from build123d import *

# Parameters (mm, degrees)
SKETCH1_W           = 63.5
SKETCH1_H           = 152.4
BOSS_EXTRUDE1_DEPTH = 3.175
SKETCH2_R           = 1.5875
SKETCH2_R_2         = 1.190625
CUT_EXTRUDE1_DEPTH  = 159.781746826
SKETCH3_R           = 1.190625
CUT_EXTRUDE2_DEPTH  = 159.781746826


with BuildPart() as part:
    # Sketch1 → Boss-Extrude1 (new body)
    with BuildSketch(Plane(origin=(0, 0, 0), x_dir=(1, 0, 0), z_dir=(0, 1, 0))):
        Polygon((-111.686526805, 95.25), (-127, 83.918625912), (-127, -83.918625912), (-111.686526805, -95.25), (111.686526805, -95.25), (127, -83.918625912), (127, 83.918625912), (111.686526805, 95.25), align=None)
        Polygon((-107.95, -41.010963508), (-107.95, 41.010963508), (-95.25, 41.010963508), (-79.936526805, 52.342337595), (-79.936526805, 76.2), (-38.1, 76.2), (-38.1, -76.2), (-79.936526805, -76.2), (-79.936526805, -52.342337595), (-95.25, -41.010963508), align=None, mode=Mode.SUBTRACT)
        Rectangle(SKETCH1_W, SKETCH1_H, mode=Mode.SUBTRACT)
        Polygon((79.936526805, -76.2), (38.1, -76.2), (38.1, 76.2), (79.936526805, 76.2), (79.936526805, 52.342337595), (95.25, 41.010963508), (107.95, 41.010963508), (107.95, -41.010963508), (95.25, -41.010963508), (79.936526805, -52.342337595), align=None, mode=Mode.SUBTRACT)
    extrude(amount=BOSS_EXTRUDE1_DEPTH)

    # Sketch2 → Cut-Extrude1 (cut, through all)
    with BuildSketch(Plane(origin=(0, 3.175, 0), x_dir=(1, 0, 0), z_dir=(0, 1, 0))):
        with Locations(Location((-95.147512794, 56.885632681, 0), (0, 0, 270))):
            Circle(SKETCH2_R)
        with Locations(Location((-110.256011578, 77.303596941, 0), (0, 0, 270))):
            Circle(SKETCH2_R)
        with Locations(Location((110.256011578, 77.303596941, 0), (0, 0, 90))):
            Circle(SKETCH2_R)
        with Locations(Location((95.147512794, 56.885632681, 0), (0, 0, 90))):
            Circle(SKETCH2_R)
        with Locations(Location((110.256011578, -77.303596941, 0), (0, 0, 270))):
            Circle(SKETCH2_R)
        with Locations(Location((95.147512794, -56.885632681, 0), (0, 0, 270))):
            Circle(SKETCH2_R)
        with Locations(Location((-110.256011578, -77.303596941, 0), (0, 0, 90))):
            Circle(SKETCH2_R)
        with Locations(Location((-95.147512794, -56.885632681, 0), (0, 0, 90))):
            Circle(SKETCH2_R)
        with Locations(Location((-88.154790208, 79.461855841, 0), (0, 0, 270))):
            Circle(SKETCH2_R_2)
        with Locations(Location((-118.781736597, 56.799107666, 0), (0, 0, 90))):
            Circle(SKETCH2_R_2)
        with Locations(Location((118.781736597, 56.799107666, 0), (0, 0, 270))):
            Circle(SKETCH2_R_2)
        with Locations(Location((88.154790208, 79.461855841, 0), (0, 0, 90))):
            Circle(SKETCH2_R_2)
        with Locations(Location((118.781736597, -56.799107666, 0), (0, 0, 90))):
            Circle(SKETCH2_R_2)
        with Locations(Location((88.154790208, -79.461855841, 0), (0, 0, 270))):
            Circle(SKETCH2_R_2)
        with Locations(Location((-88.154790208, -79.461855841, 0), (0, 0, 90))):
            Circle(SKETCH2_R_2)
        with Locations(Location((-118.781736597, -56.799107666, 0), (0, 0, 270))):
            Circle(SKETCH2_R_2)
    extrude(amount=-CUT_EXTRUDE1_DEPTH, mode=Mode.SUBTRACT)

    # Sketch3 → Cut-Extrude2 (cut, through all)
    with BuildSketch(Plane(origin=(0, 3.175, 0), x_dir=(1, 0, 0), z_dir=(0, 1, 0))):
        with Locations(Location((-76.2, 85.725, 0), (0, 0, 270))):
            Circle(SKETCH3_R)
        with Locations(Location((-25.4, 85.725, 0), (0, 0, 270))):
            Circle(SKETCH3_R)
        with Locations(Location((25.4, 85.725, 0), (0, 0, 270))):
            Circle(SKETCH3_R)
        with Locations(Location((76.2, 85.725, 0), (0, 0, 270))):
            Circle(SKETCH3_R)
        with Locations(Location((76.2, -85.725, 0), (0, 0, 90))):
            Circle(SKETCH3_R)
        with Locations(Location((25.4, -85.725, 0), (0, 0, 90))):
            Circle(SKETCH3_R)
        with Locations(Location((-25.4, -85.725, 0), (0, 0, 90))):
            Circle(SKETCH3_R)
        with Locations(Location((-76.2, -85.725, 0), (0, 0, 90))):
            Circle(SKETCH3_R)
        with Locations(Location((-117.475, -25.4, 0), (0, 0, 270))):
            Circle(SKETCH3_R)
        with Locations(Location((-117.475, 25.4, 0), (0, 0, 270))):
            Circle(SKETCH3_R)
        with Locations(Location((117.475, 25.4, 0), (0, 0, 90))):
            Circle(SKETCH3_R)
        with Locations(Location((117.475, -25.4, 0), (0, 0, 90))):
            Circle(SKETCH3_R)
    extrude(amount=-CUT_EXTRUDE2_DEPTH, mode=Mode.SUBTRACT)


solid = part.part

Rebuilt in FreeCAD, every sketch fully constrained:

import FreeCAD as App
import Part
import Sketcher

V = App.Vector
Q = App.Units.Quantity

doc = App.newDocument("Part")
body = doc.addObject("PartDesign::Body", "Body")

# Sketch on XZ plane
sketch1 = body.newObject("Sketcher::SketchObject", "Sketch")
sketch1.AttachmentSupport = (doc.getObject("XZ_Plane"), [""])
sketch1.MapMode = "FlatFace"
sketch1.addGeometry([
    Part.LineSegment(V(-112, -95, 0), V(-127, -84, 0)),  # 0
    Part.LineSegment(V(-127, -84, 0), V(-127, 84, 0)),  # 1
    Part.LineSegment(V(-127, 84, 0), V(-112, 95, 0)),  # 2
    Part.LineSegment(V(-112, 95, 0), V(112, 95, 0)),  # 3
    Part.LineSegment(V(112, 95, 0), V(127, 84, 0)),  # 4
    Part.LineSegment(V(127, 84, 0), V(127, -84, 0)),  # 5
    Part.LineSegment(V(127, -84, 0), V(112, -95, 0)),  # 6
    Part.LineSegment(V(112, -95, 0), V(-112, -95, 0)),  # 7
    Part.LineSegment(V(-95, 41, 0), V(-108, 41, 0)),  # 8
    Part.LineSegment(V(-108, 41, 0), V(-108, -41, 0)),  # 9
    Part.LineSegment(V(-108, -41, 0), V(-95, -41, 0)),  # 10
    Part.LineSegment(V(-95, -41, 0), V(-80, -52, 0)),  # 11
    Part.LineSegment(V(-80, -52, 0), V(-80, -76, 0)),  # 12
    Part.LineSegment(V(-80, -76, 0), V(-38, -76, 0)),  # 13
    Part.LineSegment(V(-38, -76, 0), V(-38, 76, 0)),  # 14
    Part.LineSegment(V(-38, 76, 0), V(-80, 76, 0)),  # 15
    Part.LineSegment(V(-80, 76, 0), V(-80, 52, 0)),  # 16
    Part.LineSegment(V(-80, 52, 0), V(-95, 41, 0)),  # 17
    Part.LineSegment(V(32, 76, 0), V(-32, 76, 0)),  # 18
    Part.LineSegment(V(-32, 76, 0), V(-32, -76, 0)),  # 19
    Part.LineSegment(V(-32, -76, 0), V(32, -76, 0)),  # 20
    Part.LineSegment(V(32, -76, 0), V(32, 76, 0)),  # 21
    Part.LineSegment(V(80, 52, 0), V(80, 76, 0)),  # 22
    Part.LineSegment(V(80, 76, 0), V(38, 76, 0)),  # 23
    Part.LineSegment(V(38, 76, 0), V(38, -76, 0)),  # 24
    Part.LineSegment(V(38, -76, 0), V(80, -76, 0)),  # 25
    Part.LineSegment(V(80, -76, 0), V(80, -52, 0)),  # 26
    Part.LineSegment(V(80, -52, 0), V(95, -41, 0)),  # 27
    Part.LineSegment(V(95, -41, 0), V(108, -41, 0)),  # 28
    Part.LineSegment(V(108, -41, 0), V(108, 41, 0)),  # 29
    Part.LineSegment(V(108, 41, 0), V(95, 41, 0)),  # 30
    Part.LineSegment(V(95, 41, 0), V(80, 52, 0)),  # 31
], False)
sketch1.addConstraint([
    Sketcher.Constraint("Coincident", 0, 2, 1, 1),
    Sketcher.Constraint("Coincident", 1, 2, 2, 1),
    Sketcher.Constraint("Coincident", 2, 2, 3, 1),
    Sketcher.Constraint("Coincident", 3, 2, 4, 1),
    Sketcher.Constraint("Coincident", 4, 2, 5, 1),
    Sketcher.Constraint("Coincident", 5, 2, 6, 1),
    Sketcher.Constraint("Coincident", 6, 2, 7, 1),
    Sketcher.Constraint("Coincident", 7, 2, 0, 1),
    Sketcher.Constraint("Coincident", 8, 2, 9, 1),
    Sketcher.Constraint("Coincident", 9, 2, 10, 1),
    Sketcher.Constraint("Coincident", 10, 2, 11, 1),
    Sketcher.Constraint("Coincident", 11, 2, 12, 1),
    Sketcher.Constraint("Coincident", 12, 2, 13, 1),
    Sketcher.Constraint("Coincident", 13, 2, 14, 1),
    Sketcher.Constraint("Coincident", 14, 2, 15, 1),
    Sketcher.Constraint("Coincident", 15, 2, 16, 1),
    Sketcher.Constraint("Coincident", 16, 2, 17, 1),
    Sketcher.Constraint("Coincident", 17, 2, 8, 1),
    Sketcher.Constraint("Coincident", 18, 2, 19, 1),
    Sketcher.Constraint("Coincident", 19, 2, 20, 1),
    Sketcher.Constraint("Coincident", 20, 2, 21, 1),
    Sketcher.Constraint("Coincident", 21, 2, 18, 1),
    Sketcher.Constraint("Coincident", 22, 2, 23, 1),
    Sketcher.Constraint("Coincident", 23, 2, 24, 1),
    Sketcher.Constraint("Coincident", 24, 2, 25, 1),
    Sketcher.Constraint("Coincident", 25, 2, 26, 1),
    Sketcher.Constraint("Coincident", 26, 2, 27, 1),
    Sketcher.Constraint("Coincident", 27, 2, 28, 1),
    Sketcher.Constraint("Coincident", 28, 2, 29, 1),
    Sketcher.Constraint("Coincident", 29, 2, 30, 1),
    Sketcher.Constraint("Coincident", 30, 2, 31, 1),
    Sketcher.Constraint("Coincident", 31, 2, 22, 1),
    Sketcher.Constraint("Vertical", 1),
    Sketcher.Constraint("Horizontal", 3),
    Sketcher.Constraint("Vertical", 5),
    Sketcher.Constraint("Horizontal", 7),
    Sketcher.Constraint("Horizontal", 8),
    Sketcher.Constraint("Vertical", 9),
    Sketcher.Constraint("Horizontal", 10),
    Sketcher.Constraint("Vertical", 12),
    Sketcher.Constraint("Horizontal", 13),
    Sketcher.Constraint("Vertical", 14),
    Sketcher.Constraint("Horizontal", 15),
    Sketcher.Constraint("Vertical", 16),
    Sketcher.Constraint("Horizontal", 18),
    Sketcher.Constraint("Vertical", 19),
    Sketcher.Constraint("Horizontal", 20),
    Sketcher.Constraint("Vertical", 21),
    Sketcher.Constraint("Vertical", 22),
    Sketcher.Constraint("Horizontal", 23),
    Sketcher.Constraint("Vertical", 24),
    Sketcher.Constraint("Horizontal", 25),
    Sketcher.Constraint("Vertical", 26),
    Sketcher.Constraint("Horizontal", 28),
    Sketcher.Constraint("Vertical", 29),
    Sketcher.Constraint("Horizontal", 30),
    Sketcher.Constraint("Symmetric", 0, 2, 4, 2, -1, 1),
    Sketcher.Constraint("Symmetric", 2, 2, 6, 2, -1, 1),
    Sketcher.Constraint("Symmetric", 18, 2, 20, 2, -1, 1),
    Sketcher.Constraint("Symmetric", 12, 2, 22, 2, -1, 1),
    Sketcher.Constraint("Symmetric", 14, 2, 24, 2, -1, 1),
    Sketcher.Constraint("Symmetric", 16, 2, 26, 2, -1, 1),
    Sketcher.Constraint("Symmetric", 17, 2, 27, 2, -1, 1),
    Sketcher.Constraint("Symmetric", 9, 2, 29, 2, -1, 1),
    Sketcher.Constraint("Symmetric", 15, 2, 22, 2, -2),
    Sketcher.Constraint("Symmetric", 10, 2, 27, 2, -2),
    Sketcher.Constraint("Parallel", 0, 4),
    Sketcher.Constraint("Parallel", 2, 6),
    Sketcher.Constraint("Parallel", 4, 11),
    Sketcher.Constraint("Parallel", 6, 17),
    Sketcher.Constraint("Parallel", 11, 31),
    Sketcher.Constraint("Horizontal", 1, 2, 4, 2),
    Sketcher.Constraint("Horizontal", 15, 2, 18, 2),
    Sketcher.Constraint("Horizontal", 11, 2, 26, 2),
    Sketcher.Constraint("Horizontal", 16, 2, 31, 2),
    Sketcher.Constraint("Equal", 6, 11),
    Sketcher.Constraint("DistanceY", 14, 1, 14, 2, Q("6 in")),
    Sketcher.Constraint("DistanceX", 8, 2, 8, 1, Q("0.5 in")),
    Sketcher.Constraint("DistanceX", 18, 2, 18, 1, Q("2.5 in")),
    Sketcher.Constraint("DistanceX", 0, 2, -1, 1, Q("5 in")),
    Sketcher.Constraint("DistanceX", 14, 2, 23, 2, Q("3 in")),
    Sketcher.Constraint("Angle", 0, Q("143.5 deg")),
    Sketcher.Constraint("DistanceY", 6, 2, 3, 2, Q("7.5 in")),
    Sketcher.Constraint("DistanceX", 17, 2, 18, 2, Q("2.5 in")),
    Sketcher.Constraint("Distance", 0, Q("0.75 in")),
    Sketcher.Constraint("DistanceY", 11, 2, 8, 2, Q("93.353301 mm")),
])
pad1 = body.newObject("PartDesign::Pad", "Pad")
pad1.Profile = sketch1
pad1.Length = Q("0.125 in")
pad1.Reversed = True

# Sketch on XZ plane
sketch2 = body.newObject("Sketcher::SketchObject", "Sketch001")
sketch2.AttachmentSupport = (doc.getObject("XZ_Plane"), [""])
sketch2.MapMode = "FlatFace"
sketch2.AttachmentOffset = App.Placement(V(0, 0, -0.125 * 25.4), App.Rotation())
sketch2.addGeometry([
    Part.Circle(V(-95.1, -56.9, 0), V(0, 0, 1), 1.6),  # 0
    Part.Circle(V(-110.3, -77.3, 0), V(0, 0, 1), 1.6),  # 1
    Part.Circle(V(110.3, -77.3, 0), V(0, 0, 1), 1.6),  # 2
    Part.Circle(V(95.1, -56.9, 0), V(0, 0, 1), 1.6),  # 3
    Part.Circle(V(110.3, 77.3, 0), V(0, 0, 1), 1.6),  # 4
    Part.Circle(V(95.1, 56.9, 0), V(0, 0, 1), 1.6),  # 5
    Part.Circle(V(-110.3, 77.3, 0), V(0, 0, 1), 1.6),  # 6
    Part.Circle(V(-95.1, 56.9, 0), V(0, 0, 1), 1.6),  # 7
    Part.Circle(V(-88.2, -79.5, 0), V(0, 0, 1), 1.2),  # 8
    Part.Circle(V(-118.8, -56.8, 0), V(0, 0, 1), 1.2),  # 9
    Part.Circle(V(118.8, -56.8, 0), V(0, 0, 1), 1.2),  # 10
    Part.Circle(V(88.2, -79.5, 0), V(0, 0, 1), 1.2),  # 11
    Part.Circle(V(118.8, 56.8, 0), V(0, 0, 1), 1.2),  # 12
    Part.Circle(V(88.2, 79.5, 0), V(0, 0, 1), 1.2),  # 13
    Part.Circle(V(-88.2, 79.5, 0), V(0, 0, 1), 1.2),  # 14
    Part.Circle(V(-118.8, 56.8, 0), V(0, 0, 1), 1.2),  # 15
], False)
sketch2.addConstraint([
    Sketcher.Constraint("Equal", 0, 1),
    Sketcher.Constraint("Equal", 1, 2),
    Sketcher.Constraint("Equal", 2, 3),
    Sketcher.Constraint("Equal", 3, 4),
    Sketcher.Constraint("Equal", 4, 5),
    Sketcher.Constraint("Equal", 5, 6),
    Sketcher.Constraint("Equal", 6, 7),
    Sketcher.Constraint("Equal", 8, 9),
    Sketcher.Constraint("Equal", 9, 10),
    Sketcher.Constraint("Equal", 10, 11),
    Sketcher.Constraint("Equal", 11, 12),
    Sketcher.Constraint("Equal", 12, 13),
    Sketcher.Constraint("Equal", 13, 14),
    Sketcher.Constraint("Equal", 14, 15),
    Sketcher.Constraint("Symmetric", 1, 3, 4, 3, -1, 1),
    Sketcher.Constraint("Symmetric", 0, 3, 5, 3, -1, 1),
    Sketcher.Constraint("Symmetric", 2, 3, 6, 3, -1, 1),
    Sketcher.Constraint("Symmetric", 3, 3, 7, 3, -1, 1),
    Sketcher.Constraint("Symmetric", 9, 3, 12, 3, -1, 1),
    Sketcher.Constraint("Symmetric", 8, 3, 13, 3, -1, 1),
    Sketcher.Constraint("Symmetric", 11, 3, 14, 3, -1, 1),
    Sketcher.Constraint("Symmetric", 10, 3, 15, 3, -1, 1),
    Sketcher.Constraint("Symmetric", 1, 3, 2, 3, -2),
    Sketcher.Constraint("Symmetric", 0, 3, 3, 3, -2),
    Sketcher.Constraint("Symmetric", 9, 3, 10, 3, -2),
    Sketcher.Constraint("Symmetric", 8, 3, 11, 3, -2),
    Sketcher.Constraint("Diameter", 0, Q("0.125 in")),
    Sketcher.Constraint("Diameter", 8, Q("0.09375 in")),
    Sketcher.Constraint("DistanceX", 1, 3, 0, 3, Q("15.108499 mm")),
    Sketcher.Constraint("DistanceX", 1, 3, -1, 1, Q("110.256012 mm")),
    Sketcher.Constraint("DistanceX", 8, 3, -1, 1, Q("88.15479 mm")),
    Sketcher.Constraint("DistanceY", 3, 3, 4, 3, Q("134.18923 mm")),
    Sketcher.Constraint("DistanceY", 8, 3, 1, 3, Q("2.158259 mm")),
    Sketcher.Constraint("DistanceY", 1, 3, 9, 3, Q("20.504489 mm")),
    Sketcher.Constraint("DistanceY", 0, 3, -1, 1, Q("56.885633 mm")),
    Sketcher.Constraint("DistanceX", 9, 3, -1, 1, Q("118.781737 mm")),
])
pocket1 = body.newObject("PartDesign::Pocket", "Pocket")
pocket1.Profile = sketch2
pocket1.Type = "ThroughAll"
pocket1.Reversed = True

# Sketch on XZ plane
sketch3 = body.newObject("Sketcher::SketchObject", "Sketch002")
sketch3.AttachmentSupport = (doc.getObject("XZ_Plane"), [""])
sketch3.MapMode = "FlatFace"
sketch3.AttachmentOffset = App.Placement(V(0, 0, -0.125 * 25.4), App.Rotation())
sketch3.addGeometry([
    Part.Circle(V(-76.2, -85.7, 0), V(0, 0, 1), 1.2),  # 0
    Part.Circle(V(-25.4, -85.7, 0), V(0, 0, 1), 1.2),  # 1
    Part.Circle(V(25.4, -85.7, 0), V(0, 0, 1), 1.2),  # 2
    Part.Circle(V(76.2, -85.7, 0), V(0, 0, 1), 1.2),  # 3
    Part.Circle(V(76.2, 85.7, 0), V(0, 0, 1), 1.2),  # 4
    Part.Circle(V(25.4, 85.7, 0), V(0, 0, 1), 1.2),  # 5
    Part.Circle(V(-25.4, 85.7, 0), V(0, 0, 1), 1.2),  # 6
    Part.Circle(V(-76.2, 85.7, 0), V(0, 0, 1), 1.2),  # 7
    Part.Circle(V(-117.5, 25.4, 0), V(0, 0, 1), 1.2),  # 8
    Part.Circle(V(-117.5, -25.4, 0), V(0, 0, 1), 1.2),  # 9
    Part.Circle(V(117.5, -25.4, 0), V(0, 0, 1), 1.2),  # 10
    Part.Circle(V(117.5, 25.4, 0), V(0, 0, 1), 1.2),  # 11
], False)
sketch3.addConstraint([
    Sketcher.Constraint("Equal", 0, 1),
    Sketcher.Constraint("Equal", 1, 2),
    Sketcher.Constraint("Equal", 2, 3),
    Sketcher.Constraint("Equal", 3, 4),
    Sketcher.Constraint("Equal", 4, 5),
    Sketcher.Constraint("Equal", 5, 6),
    Sketcher.Constraint("Equal", 6, 7),
    Sketcher.Constraint("Equal", 7, 8),
    Sketcher.Constraint("Equal", 8, 9),
    Sketcher.Constraint("Equal", 9, 10),
    Sketcher.Constraint("Equal", 10, 11),
    Sketcher.Constraint("Symmetric", 0, 3, 4, 3, -1, 1),
    Sketcher.Constraint("Symmetric", 1, 3, 5, 3, -1, 1),
    Sketcher.Constraint("Symmetric", 2, 3, 6, 3, -1, 1),
    Sketcher.Constraint("Symmetric", 3, 3, 7, 3, -1, 1),
    Sketcher.Constraint("Symmetric", 8, 3, 10, 3, -1, 1),
    Sketcher.Constraint("Symmetric", 9, 3, 11, 3, -1, 1),
    Sketcher.Constraint("Symmetric", 1, 3, 2, 3, -2),
    Sketcher.Constraint("Symmetric", 0, 3, 3, 3, -2),
    Sketcher.Constraint("Symmetric", 9, 3, 10, 3, -2),
    Sketcher.Constraint("Horizontal", 0, 3, 1, 3),
    Sketcher.Constraint("Diameter", 0, Q("0.09375 in")),
    Sketcher.Constraint("DistanceX", 0, 3, -1, 1, Q("3 in")),
    Sketcher.Constraint("DistanceX", 1, 3, -1, 1, Q("1 in")),
    Sketcher.Constraint("DistanceY", -1, 1, 8, 3, Q("1 in")),
    Sketcher.Constraint("DistanceY", 3, 3, 4, 3, Q("6.75 in")),
    Sketcher.Constraint("DistanceX", 8, 3, -1, 1, Q("4.625 in")),
])
pocket2 = body.newObject("PartDesign::Pocket", "Pocket001")
pocket2.Profile = sketch3
pocket2.Type = "ThroughAll"
pocket2.Reversed = True

doc.recompute()
